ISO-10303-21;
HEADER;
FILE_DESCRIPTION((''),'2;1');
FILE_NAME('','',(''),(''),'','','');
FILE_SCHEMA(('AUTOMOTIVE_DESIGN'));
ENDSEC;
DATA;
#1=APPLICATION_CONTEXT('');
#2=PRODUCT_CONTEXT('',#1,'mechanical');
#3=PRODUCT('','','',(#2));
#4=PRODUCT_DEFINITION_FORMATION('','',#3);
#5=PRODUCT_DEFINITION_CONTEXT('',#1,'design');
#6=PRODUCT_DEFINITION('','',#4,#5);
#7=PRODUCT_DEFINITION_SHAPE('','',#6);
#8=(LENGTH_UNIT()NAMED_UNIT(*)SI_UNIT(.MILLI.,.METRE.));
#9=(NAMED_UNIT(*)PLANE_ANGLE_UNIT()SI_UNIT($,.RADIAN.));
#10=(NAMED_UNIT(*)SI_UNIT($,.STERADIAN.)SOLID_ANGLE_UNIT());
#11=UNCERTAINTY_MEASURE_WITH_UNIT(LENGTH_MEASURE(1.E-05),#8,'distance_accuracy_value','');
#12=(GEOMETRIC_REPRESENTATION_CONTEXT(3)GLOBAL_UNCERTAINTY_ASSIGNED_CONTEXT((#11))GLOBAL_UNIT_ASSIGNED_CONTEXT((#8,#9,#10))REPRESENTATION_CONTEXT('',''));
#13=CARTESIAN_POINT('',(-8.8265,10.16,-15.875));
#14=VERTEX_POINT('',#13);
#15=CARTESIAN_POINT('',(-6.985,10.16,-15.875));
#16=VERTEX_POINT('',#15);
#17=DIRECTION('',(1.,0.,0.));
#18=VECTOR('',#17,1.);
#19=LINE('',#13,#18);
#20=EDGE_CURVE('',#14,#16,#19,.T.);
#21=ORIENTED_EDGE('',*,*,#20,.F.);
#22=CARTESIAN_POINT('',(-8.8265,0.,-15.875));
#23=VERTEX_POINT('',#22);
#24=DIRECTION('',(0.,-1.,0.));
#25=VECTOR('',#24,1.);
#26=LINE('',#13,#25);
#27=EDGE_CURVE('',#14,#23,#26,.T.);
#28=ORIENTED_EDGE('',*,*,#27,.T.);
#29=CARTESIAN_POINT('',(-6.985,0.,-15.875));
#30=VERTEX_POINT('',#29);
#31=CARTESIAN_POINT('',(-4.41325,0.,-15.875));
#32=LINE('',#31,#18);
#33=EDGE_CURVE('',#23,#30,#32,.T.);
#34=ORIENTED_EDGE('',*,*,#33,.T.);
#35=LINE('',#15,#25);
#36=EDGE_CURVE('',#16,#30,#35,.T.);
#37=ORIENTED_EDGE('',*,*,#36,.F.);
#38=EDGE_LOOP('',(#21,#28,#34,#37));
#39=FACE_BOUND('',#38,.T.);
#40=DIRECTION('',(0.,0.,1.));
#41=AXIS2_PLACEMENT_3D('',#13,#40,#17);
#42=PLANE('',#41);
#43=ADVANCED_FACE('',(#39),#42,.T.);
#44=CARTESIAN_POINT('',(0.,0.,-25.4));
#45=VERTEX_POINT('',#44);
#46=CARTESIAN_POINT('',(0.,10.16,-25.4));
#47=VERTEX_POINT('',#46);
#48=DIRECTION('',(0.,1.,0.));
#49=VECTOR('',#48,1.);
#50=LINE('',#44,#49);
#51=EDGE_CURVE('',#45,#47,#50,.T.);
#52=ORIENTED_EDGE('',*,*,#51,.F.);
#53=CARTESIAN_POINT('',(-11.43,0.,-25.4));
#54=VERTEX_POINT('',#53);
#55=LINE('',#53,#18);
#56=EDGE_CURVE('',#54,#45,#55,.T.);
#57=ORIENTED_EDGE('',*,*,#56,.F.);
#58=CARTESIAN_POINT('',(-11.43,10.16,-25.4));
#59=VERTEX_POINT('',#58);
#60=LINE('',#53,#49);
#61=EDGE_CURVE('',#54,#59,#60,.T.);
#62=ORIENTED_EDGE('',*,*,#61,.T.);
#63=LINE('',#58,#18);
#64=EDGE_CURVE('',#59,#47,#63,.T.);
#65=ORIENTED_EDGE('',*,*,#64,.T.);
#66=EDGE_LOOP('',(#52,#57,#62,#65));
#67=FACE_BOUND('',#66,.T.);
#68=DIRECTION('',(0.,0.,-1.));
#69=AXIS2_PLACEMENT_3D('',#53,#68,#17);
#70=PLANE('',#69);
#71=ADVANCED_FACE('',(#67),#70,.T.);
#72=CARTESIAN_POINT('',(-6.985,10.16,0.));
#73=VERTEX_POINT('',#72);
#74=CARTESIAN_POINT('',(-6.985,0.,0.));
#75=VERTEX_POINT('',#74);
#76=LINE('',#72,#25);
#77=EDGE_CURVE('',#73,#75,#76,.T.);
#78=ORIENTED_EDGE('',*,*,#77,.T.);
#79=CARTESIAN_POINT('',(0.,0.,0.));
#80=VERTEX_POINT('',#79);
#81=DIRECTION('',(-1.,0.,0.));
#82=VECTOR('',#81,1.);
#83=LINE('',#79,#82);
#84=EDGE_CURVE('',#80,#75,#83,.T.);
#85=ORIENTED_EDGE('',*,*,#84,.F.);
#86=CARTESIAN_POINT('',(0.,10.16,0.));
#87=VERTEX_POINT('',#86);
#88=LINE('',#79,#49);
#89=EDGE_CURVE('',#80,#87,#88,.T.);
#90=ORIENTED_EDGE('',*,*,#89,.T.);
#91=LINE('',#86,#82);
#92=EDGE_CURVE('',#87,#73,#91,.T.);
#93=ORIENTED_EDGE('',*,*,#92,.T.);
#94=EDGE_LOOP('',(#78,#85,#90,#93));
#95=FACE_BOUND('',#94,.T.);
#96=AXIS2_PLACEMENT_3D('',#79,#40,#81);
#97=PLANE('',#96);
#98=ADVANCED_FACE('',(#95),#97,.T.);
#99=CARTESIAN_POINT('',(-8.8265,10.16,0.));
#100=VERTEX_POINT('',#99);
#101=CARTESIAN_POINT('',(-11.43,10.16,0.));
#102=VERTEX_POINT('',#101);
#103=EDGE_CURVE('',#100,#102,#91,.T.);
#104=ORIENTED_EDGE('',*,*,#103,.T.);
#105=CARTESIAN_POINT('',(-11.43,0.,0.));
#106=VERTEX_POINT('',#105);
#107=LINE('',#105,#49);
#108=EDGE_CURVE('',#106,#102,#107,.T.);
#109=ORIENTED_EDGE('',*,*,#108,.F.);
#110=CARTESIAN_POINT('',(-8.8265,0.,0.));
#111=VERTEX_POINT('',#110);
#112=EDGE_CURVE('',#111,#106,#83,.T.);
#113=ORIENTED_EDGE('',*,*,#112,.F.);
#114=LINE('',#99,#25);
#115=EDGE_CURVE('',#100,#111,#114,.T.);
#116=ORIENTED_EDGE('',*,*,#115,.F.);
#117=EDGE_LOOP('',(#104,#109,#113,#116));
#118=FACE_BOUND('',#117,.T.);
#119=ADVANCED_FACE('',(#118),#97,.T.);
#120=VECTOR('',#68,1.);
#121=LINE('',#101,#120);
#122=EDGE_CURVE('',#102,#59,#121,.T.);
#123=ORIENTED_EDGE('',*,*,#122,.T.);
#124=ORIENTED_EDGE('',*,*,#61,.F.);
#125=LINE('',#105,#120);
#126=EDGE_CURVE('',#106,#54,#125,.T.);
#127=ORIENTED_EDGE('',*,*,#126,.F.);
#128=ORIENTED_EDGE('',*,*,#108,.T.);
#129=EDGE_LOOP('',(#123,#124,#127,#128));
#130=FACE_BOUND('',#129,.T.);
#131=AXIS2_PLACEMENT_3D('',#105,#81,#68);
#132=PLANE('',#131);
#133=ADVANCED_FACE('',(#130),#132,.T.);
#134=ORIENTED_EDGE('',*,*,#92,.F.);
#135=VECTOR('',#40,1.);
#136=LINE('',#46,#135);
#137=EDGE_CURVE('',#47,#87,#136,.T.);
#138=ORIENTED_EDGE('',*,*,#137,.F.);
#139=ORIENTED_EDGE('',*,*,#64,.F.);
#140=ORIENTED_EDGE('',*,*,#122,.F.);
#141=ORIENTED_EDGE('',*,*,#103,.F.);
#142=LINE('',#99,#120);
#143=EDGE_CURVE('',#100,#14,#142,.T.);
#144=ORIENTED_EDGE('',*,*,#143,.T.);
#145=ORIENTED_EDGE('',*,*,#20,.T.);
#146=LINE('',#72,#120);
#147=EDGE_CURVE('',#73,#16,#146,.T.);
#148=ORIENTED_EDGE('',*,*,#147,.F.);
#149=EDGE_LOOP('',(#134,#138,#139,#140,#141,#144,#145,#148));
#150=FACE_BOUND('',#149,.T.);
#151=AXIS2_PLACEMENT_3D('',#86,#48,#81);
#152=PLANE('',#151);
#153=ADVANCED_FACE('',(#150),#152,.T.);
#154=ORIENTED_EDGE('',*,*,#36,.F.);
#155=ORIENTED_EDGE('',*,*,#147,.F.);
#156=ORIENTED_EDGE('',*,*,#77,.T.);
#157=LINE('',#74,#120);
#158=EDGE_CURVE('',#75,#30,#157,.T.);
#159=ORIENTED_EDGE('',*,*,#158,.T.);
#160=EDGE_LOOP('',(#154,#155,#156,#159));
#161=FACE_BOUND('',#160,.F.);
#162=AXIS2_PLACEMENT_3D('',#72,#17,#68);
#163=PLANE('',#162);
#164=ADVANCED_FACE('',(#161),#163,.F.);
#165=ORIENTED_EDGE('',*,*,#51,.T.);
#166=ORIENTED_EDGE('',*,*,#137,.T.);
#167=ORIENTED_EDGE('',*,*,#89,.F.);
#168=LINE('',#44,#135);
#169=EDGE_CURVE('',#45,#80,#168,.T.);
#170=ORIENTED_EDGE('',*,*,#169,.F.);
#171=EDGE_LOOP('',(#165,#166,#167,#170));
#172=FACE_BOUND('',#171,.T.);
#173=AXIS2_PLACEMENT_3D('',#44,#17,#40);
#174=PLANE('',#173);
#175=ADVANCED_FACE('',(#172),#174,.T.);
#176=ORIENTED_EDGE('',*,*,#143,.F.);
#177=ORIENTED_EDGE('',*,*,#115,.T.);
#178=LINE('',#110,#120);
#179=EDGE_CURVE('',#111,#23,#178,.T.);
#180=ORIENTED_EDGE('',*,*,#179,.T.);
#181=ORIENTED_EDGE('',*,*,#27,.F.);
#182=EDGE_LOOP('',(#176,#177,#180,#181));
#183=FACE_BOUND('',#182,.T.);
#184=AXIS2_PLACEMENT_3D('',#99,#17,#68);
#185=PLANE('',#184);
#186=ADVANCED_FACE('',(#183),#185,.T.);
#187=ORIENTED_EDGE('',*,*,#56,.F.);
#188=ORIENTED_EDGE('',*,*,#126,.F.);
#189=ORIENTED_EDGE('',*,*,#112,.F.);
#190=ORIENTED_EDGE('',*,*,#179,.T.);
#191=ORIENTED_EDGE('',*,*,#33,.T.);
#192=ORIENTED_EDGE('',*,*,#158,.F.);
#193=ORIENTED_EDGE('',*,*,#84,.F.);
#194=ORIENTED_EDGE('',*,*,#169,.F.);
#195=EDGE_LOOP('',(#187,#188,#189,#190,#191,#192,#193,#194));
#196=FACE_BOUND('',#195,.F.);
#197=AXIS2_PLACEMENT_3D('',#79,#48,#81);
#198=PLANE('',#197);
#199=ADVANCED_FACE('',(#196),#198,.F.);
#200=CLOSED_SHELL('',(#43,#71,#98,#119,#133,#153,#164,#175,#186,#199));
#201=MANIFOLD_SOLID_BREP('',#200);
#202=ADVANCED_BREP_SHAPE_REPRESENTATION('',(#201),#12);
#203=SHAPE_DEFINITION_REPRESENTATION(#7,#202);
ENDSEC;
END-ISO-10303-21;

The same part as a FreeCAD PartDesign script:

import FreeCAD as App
import Part
import Sketcher

V = App.Vector
Q = App.Units.Quantity

doc = App.newDocument("Part")
params = doc.addObject("Spreadsheet::Sheet", "Params")
for row, (alias, value) in enumerate([
    ("sketch1_height", "1 in"),
    ("sketch1_width", "0.45 in"),
    ("pad1_length", "0.4 in"),
    ("sketch2_height", "0.625 in"),
    ("pocket1_length", "0.5 in"),
], start=1):
    params.set(f"A{row}", alias)
    params.set(f"B{row}", "=" + value)
    params.setAlias(f"B{row}", alias)

body = doc.addObject("PartDesign::Body", "Body")

# Sketch on XZ plane
sketch1 = body.newObject("Sketcher::SketchObject", "Sketch")
sketch1.AttachmentSupport = (doc.getObject("XZ_Plane"), [""])
sketch1.MapMode = "FlatFace"
sketch1.addGeometry([
    Part.LineSegment(V(-11, 0, 0), V(0, 0, 0)),
    Part.LineSegment(V(0, 0, 0), V(0, -25, 0)),
    Part.LineSegment(V(0, -25, 0), V(-11, -25, 0)),
    Part.LineSegment(V(-11, -25, 0), V(-11, 0, 0)),
], False)
sketch1.addConstraint([
    Sketcher.Constraint("Coincident", 0, 2, 1, 1),
    Sketcher.Constraint("Coincident", 1, 2, 2, 1),
    Sketcher.Constraint("Coincident", 2, 2, 3, 1),
    Sketcher.Constraint("Coincident", 3, 2, 0, 1),
    Sketcher.Constraint("Horizontal", 0),
    Sketcher.Constraint("Vertical", 1),
    Sketcher.Constraint("Horizontal", 2),
    Sketcher.Constraint("Vertical", 3),
    Sketcher.Constraint("Coincident", 0, 2, -1, 1),
    Sketcher.Constraint("DistanceY", 1, 2, 1, 1, Q("1 in")),
    Sketcher.Constraint("DistanceX", 0, 1, 0, 2, Q("0.45 in")),
])
sketch1.setExpression("Constraints[9]", "Params.sketch1_height")
sketch1.setExpression("Constraints[10]", "Params.sketch1_width")
pad1 = body.newObject("PartDesign::Pad", "Pad")
pad1.Profile = sketch1
pad1.setExpression("Length", "Params.pad1_length")
pad1.Reversed = True

# Sketch on XZ plane
sketch2 = body.newObject("Sketcher::SketchObject", "Sketch001")
sketch2.AttachmentSupport = (doc.getObject("XZ_Plane"), [""])
sketch2.MapMode = "FlatFace"
sketch2.AttachmentOffset = App.Placement(V(0, 0, -0.4 * 25.4), App.Rotation())
sketch2.addGeometry([
    Part.LineSegment(V(-8.8, 0, 0), V(-7, 0, 0)),
    Part.LineSegment(V(-7, 0, 0), V(-7, -15.9, 0)),
    Part.LineSegment(V(-7, -15.9, 0), V(-8.8, -15.9, 0)),
    Part.LineSegment(V(-8.8, -15.9, 0), V(-8.8, 0, 0)),
], False)
sketch2.addConstraint([
    Sketcher.Constraint("Coincident", 0, 2, 1, 1),
    Sketcher.Constraint("Coincident", 1, 2, 2, 1),
    Sketcher.Constraint("Coincident", 2, 2, 3, 1),
    Sketcher.Constraint("Coincident", 3, 2, 0, 1),
    Sketcher.Constraint("Horizontal", 0),
    Sketcher.Constraint("Vertical", 1),
    Sketcher.Constraint("Horizontal", 2),
    Sketcher.Constraint("Vertical", 3),
    Sketcher.Constraint("PointOnObject", 0, 2, -1),
    Sketcher.Constraint("DistanceY", 1, 2, 1, 1, Q("0.625 in")),
    Sketcher.Constraint("DistanceX", 0, 1, 0, 2, Q("0.0725 in")),
    Sketcher.Constraint("DistanceX", 0, 2, -1, 1, Q("0.275 in")),
])
sketch2.setExpression("Constraints[9]", "Params.sketch2_height")
pocket1 = body.newObject("PartDesign::Pocket", "Pocket")
pocket1.Profile = sketch2
pocket1.setExpression("Length", "Params.pocket1_length")
pocket1.Reversed = True

doc.recompute()
